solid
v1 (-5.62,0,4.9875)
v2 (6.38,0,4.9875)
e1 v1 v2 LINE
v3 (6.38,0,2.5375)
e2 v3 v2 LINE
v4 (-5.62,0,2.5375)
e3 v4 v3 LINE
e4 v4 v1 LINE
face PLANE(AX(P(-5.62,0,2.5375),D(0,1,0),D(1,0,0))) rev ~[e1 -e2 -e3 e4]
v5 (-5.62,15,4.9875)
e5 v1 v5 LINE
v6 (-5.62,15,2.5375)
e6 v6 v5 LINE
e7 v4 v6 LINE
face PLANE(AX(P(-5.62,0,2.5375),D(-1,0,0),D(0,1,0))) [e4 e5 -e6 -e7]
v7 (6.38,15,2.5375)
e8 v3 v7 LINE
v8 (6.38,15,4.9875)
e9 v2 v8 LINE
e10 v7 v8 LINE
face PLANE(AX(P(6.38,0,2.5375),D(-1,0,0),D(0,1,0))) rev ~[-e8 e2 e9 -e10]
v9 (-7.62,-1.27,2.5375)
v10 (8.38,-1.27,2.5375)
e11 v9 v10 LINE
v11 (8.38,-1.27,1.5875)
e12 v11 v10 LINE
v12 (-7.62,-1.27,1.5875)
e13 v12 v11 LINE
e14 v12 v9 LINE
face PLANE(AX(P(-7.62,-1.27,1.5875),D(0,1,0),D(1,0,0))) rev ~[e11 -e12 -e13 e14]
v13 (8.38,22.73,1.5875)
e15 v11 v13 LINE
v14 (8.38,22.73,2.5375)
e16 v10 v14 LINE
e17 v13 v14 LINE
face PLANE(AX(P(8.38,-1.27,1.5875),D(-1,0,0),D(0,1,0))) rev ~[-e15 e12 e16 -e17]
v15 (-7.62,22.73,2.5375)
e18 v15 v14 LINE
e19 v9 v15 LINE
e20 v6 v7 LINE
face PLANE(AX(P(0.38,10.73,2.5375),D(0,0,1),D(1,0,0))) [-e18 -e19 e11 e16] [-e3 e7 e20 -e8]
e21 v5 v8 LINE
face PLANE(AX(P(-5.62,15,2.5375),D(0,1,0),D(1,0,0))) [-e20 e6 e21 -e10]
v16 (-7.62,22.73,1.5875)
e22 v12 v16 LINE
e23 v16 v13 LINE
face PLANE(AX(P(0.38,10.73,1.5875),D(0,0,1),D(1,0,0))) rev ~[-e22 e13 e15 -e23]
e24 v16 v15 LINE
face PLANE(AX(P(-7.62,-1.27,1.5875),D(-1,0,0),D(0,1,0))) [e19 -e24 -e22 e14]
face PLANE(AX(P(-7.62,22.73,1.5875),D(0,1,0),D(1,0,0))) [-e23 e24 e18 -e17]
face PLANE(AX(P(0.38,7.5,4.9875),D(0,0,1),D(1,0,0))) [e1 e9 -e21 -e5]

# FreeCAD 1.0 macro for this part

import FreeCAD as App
import Part
import Sketcher
from FreeCAD import Vector
Q = App.Units.Quantity

doc = App.newDocument("Part")
body = doc.addObject("PartDesign::Body", "Body")

sketch1 = body.newObject("Sketcher::SketchObject", "Sketch")
sketch1.AttachmentSupport = (doc.getObject("XY_Plane"), [""])
sketch1.MapMode = "FlatFace"
sketch1.AttachmentOffset = App.Placement(Vector(0, 0, 1.27), App.Rotation())
sketch1.addGeometry([
    Part.LineSegment(Vector(-8, 23, 0), Vector(-8, -1, 0)),
    Part.LineSegment(Vector(-8, -1, 0), Vector(8, -1, 0)),
    Part.LineSegment(Vector(8, -1, 0), Vector(8, 23, 0)),
    Part.LineSegment(Vector(8, 23, 0), Vector(-8, 23, 0)),
], False)
sketch1.addConstraint([
    Sketcher.Constraint("Coincident", 0, 2, 1, 1),
    Sketcher.Constraint("Coincident", 1, 2, 2, 1),
    Sketcher.Constraint("Coincident", 2, 2, 3, 1),
    Sketcher.Constraint("Coincident", 3, 2, 0, 1),
    Sketcher.Constraint("Vertical", 0),
    Sketcher.Constraint("Horizontal", 1),
    Sketcher.Constraint("Vertical", 2),
    Sketcher.Constraint("Horizontal", 3),
    Sketcher.Constraint("DistanceX", 1, 1, 1, 2, Q("16 mm")),
    Sketcher.Constraint("DistanceY", 0, 2, 0, 1, Q("24 mm")),
    Sketcher.Constraint("DistanceX", 0, 2, -1, 1, Q("7.62 mm")),
    Sketcher.Constraint("DistanceY", 0, 2, -1, 1, Q("1.27 mm")),
])
pad1 = body.newObject("PartDesign::Pad", "Pad")
pad1.Profile = sketch1
pad1.Length = 0.95
body2 = doc.addObject("PartDesign::Body", "Body001")

sketch2 = body2.newObject("Sketcher::SketchObject", "Sketch001")
sketch2.AttachmentSupport = (doc.getObject("XY_Plane001"), [""])
sketch2.MapMode = "FlatFace"
sketch2.AttachmentOffset = App.Placement(Vector(0, 0, 2.22), App.Rotation())
sketch2.addGeometry([
    Part.LineSegment(Vector(-6, 15, 0), Vector(-6, 0, 0)),
    Part.LineSegment(Vector(-6, 0, 0), Vector(6, 0, 0)),
    Part.LineSegment(Vector(6, 0, 0), Vector(6, 15, 0)),
    Part.LineSegment(Vector(6, 15, 0), Vector(-6, 15, 0)),
], False)
sketch2.addConstraint([
    Sketcher.Constraint("Coincident", 0, 2, 1, 1),
    Sketcher.Constraint("Coincident", 1, 2, 2, 1),
    Sketcher.Constraint("Coincident", 2, 2, 3, 1),
    Sketcher.Constraint("Coincident", 3, 2, 0, 1),
    Sketcher.Constraint("Vertical", 0),
    Sketcher.Constraint("Horizontal", 1),
    Sketcher.Constraint("Vertical", 2),
    Sketcher.Constraint("Horizontal", 3),
    Sketcher.Constraint("PointOnObject", 0, 2, -1),
    Sketcher.Constraint("DistanceX", 1, 1, 1, 2, Q("12 mm")),
    Sketcher.Constraint("DistanceY", 0, 2, 0, 1, Q("15 mm")),
    Sketcher.Constraint("DistanceX", 0, 2, -1, 1, Q("5.62 mm")),
])
pad2 = body2.newObject("PartDesign::Pad", "Pad001")
pad2.Profile = sketch2
pad2.Length = 2.45
doc.recompute()

boolean = body2.newObject("PartDesign::Boolean", "Boolean")
boolean.Type = "Fuse"
boolean.addObjects([body])
body3 = doc.addObject("PartDesign::Body", "Body002")
doc.recompute()

body2.Placement = App.Placement(Vector(0, 0, 0.3175), App.Rotation(Vector(0, 0, 1), 0))
boolean2 = body3.newObject("PartDesign::Boolean", "Boolean001")
boolean2.Type = "Fuse"
boolean2.addObjects([body2])

doc.recompute()
